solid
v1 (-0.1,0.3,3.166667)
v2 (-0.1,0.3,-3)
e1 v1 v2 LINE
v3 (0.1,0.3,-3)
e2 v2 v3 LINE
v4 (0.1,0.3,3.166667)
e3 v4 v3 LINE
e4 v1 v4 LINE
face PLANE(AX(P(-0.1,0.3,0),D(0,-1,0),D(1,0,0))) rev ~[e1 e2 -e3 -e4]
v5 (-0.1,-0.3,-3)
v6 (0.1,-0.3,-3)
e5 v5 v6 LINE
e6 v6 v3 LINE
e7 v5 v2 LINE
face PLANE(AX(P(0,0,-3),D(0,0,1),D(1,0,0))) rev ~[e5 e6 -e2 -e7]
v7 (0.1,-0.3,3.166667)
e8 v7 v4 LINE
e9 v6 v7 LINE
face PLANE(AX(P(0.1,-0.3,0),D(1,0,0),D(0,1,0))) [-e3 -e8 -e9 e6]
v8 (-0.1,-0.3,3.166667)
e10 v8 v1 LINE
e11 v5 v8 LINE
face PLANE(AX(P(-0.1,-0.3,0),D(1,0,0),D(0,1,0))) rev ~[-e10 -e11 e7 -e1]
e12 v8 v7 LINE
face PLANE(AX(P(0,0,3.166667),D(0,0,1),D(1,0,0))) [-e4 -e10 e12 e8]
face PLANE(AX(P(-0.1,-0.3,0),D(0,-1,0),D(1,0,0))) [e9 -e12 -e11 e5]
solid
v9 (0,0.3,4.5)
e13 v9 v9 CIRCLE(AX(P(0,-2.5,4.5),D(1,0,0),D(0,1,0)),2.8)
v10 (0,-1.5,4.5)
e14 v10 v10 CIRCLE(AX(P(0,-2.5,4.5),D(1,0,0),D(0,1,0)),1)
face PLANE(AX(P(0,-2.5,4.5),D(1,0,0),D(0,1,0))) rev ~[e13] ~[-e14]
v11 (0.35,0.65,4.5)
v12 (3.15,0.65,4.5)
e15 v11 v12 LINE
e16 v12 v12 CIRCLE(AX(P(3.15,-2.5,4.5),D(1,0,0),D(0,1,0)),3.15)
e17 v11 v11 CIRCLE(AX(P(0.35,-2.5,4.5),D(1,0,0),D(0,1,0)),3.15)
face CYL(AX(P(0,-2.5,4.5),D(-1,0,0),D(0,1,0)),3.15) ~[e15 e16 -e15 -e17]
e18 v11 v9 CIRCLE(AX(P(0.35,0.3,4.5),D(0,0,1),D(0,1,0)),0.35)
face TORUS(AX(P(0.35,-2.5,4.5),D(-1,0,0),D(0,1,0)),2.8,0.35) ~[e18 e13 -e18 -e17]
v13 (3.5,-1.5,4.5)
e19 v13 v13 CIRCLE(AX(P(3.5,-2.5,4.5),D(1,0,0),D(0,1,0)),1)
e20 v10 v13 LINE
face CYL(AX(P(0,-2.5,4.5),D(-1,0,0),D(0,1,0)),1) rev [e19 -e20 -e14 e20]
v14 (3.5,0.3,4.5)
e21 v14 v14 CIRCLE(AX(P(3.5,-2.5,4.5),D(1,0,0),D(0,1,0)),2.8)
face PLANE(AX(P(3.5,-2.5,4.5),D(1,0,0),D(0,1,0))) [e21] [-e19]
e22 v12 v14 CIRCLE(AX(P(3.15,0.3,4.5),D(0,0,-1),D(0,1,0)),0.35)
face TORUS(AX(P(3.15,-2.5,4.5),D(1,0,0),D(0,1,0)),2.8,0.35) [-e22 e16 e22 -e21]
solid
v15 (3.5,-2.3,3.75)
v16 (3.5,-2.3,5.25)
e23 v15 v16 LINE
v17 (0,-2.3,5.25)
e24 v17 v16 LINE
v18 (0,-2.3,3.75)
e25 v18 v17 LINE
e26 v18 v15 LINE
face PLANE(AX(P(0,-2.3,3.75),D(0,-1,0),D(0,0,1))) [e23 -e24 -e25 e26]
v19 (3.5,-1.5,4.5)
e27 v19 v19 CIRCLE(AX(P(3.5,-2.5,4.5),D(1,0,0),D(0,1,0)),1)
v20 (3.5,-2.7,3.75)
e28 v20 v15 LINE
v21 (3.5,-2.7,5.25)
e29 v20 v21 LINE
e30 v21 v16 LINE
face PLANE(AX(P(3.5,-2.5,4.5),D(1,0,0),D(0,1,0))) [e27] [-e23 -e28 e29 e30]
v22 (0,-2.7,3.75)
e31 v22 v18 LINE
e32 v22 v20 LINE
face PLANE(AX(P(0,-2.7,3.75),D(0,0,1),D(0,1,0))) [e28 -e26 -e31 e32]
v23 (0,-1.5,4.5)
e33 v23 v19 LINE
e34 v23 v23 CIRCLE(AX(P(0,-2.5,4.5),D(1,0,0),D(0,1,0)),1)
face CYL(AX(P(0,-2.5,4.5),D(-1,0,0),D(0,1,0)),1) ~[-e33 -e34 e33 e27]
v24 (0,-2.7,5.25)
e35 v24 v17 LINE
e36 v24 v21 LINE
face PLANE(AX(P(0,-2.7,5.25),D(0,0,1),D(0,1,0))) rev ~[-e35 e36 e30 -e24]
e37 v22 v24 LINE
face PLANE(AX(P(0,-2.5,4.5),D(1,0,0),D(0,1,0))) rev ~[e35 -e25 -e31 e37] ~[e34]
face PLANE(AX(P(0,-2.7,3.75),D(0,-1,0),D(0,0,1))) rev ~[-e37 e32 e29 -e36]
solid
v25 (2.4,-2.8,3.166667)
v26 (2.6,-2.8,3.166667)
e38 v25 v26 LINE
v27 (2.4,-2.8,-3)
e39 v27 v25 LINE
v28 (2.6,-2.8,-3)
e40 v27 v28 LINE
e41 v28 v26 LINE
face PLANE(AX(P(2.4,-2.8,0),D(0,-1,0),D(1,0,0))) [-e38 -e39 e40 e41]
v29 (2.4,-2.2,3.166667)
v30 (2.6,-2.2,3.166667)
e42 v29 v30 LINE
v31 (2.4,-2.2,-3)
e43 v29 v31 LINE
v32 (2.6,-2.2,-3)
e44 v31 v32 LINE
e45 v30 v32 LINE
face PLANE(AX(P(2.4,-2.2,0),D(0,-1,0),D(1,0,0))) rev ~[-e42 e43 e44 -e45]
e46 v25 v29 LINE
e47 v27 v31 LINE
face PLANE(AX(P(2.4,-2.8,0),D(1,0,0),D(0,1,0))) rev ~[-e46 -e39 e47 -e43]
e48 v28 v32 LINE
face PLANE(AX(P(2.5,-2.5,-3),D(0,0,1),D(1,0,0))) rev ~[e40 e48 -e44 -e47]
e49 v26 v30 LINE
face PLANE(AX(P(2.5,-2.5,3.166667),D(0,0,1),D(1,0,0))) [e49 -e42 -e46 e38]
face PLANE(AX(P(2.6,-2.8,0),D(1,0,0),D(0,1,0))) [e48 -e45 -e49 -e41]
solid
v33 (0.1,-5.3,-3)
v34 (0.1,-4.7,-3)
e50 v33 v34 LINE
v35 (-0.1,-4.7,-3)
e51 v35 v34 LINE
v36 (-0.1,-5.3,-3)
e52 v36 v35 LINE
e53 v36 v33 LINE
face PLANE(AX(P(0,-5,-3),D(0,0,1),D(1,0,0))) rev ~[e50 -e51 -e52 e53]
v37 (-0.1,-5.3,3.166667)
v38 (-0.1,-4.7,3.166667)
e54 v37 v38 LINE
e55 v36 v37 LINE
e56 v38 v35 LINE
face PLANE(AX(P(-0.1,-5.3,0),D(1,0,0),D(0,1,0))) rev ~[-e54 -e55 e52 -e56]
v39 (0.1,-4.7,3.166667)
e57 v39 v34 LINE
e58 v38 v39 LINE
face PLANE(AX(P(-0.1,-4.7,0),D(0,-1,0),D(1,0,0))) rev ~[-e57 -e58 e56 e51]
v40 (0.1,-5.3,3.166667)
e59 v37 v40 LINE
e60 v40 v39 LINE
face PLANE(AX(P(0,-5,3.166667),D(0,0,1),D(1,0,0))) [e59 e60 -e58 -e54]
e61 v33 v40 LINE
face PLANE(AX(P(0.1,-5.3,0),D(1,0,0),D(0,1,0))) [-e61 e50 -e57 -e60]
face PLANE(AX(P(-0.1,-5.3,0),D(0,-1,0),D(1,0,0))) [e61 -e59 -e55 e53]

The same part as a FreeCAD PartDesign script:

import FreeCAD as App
import Part
import Sketcher
from FreeCAD import Vector
Q = App.Units.Quantity


def edges_at(feature, points):
    """Names of the edges that pass closest to the given points."""
    edges = feature.Shape.Edges
    near = lambda p: min(range(len(edges)), key=lambda i: edges[i].distToShape(Part.Vertex(*p))[0])
    return sorted({f"Edge{near(p) + 1}" for p in points})

doc = App.newDocument("Part")
params = doc.addObject("Spreadsheet::Sheet", "Params")
for row, (alias, value) in enumerate([
    ("sketch1_diameter", "2 mm"),
    ("sketch1_width", "0.4 mm"),
    ("sketch1_height", "1.5 mm"),
    ("pad1_length", "3.5 mm"),
    ("sketch2_diameter", "2 mm"),
    ("sketch2_diameter2", "6.3 mm"),
    ("pad2_length", "3.5 mm"),
    ("fillet_radius", "0.35 mm"),
    ("sketch3_width", "0.2 mm"),
    ("sketch3_height", "0.6 mm"),
    ("pad3_length", "3.166667 mm"),
    ("pad3_length2", "3 mm"),
], start=1):
    params.set(f"A{row}", alias)
    params.set(f"B{row}", "=" + value)
    params.setAlias(f"B{row}", alias)

body = doc.addObject("PartDesign::Body", "Body")

# Sketch on YZ plane
sketch1 = body.newObject("Sketcher::SketchObject", "Sketch")
sketch1.AttachmentSupport = (doc.getObject("YZ_Plane"), [""])
sketch1.MapMode = "FlatFace"
sketch1.addGeometry([
    Part.Circle(Vector(-2.5, 4.5, 0), Vector(0, 0, 1), 1),  # 0
    Part.LineSegment(Vector(-2.3, 3.75, 0), Vector(-2.7, 3.75, 0)),  # 1
    Part.LineSegment(Vector(-2.7, 3.75, 0), Vector(-2.7, 5.25, 0)),  # 2
    Part.LineSegment(Vector(-2.7, 5.25, 0), Vector(-2.3, 5.25, 0)),  # 3
    Part.LineSegment(Vector(-2.3, 5.25, 0), Vector(-2.3, 3.75, 0)),  # 4
], False)
sketch1.addConstraint([
    Sketcher.Constraint("Coincident", 1, 2, 2, 1),
    Sketcher.Constraint("Coincident", 2, 2, 3, 1),
    Sketcher.Constraint("Coincident", 3, 2, 4, 1),
    Sketcher.Constraint("Coincident", 4, 2, 1, 1),
    Sketcher.Constraint("Horizontal", 1),
    Sketcher.Constraint("Vertical", 2),
    Sketcher.Constraint("Horizontal", 3),
    Sketcher.Constraint("Vertical", 4),
    Sketcher.Constraint("Diameter", 0, Q("2 mm")),
    Sketcher.Constraint("DistanceX", 1, 2, 1, 1, Q("0.4 mm")),
    Sketcher.Constraint("DistanceY", 2, 1, 2, 2, Q("1.5 mm")),
    Sketcher.Constraint("DistanceX", 0, 3, -1, 1, Q("2.5 mm")),
    Sketcher.Constraint("DistanceY", -1, 1, 0, 3, Q("4.5 mm")),
    Sketcher.Constraint("DistanceX", 1, 2, -1, 1, Q("2.7 mm")),
    Sketcher.Constraint("DistanceY", -1, 1, 1, 2, Q("3.75 mm")),
])
sketch1.setExpression("Constraints[8]", "Params.sketch1_diameter")
sketch1.setExpression("Constraints[9]", "Params.sketch1_width")
sketch1.setExpression("Constraints[10]", "Params.sketch1_height")
pad1 = body.newObject("PartDesign::Pad", "Pad")
pad1.Profile = sketch1
pad1.setExpression("Length", "Params.pad1_length")
body2 = doc.addObject("PartDesign::Body", "Body001")

# Sketch on YZ plane
sketch2 = body2.newObject("Sketcher::SketchObject", "Sketch001")
sketch2.AttachmentSupport = (doc.getObject("YZ_Plane001"), [""])
sketch2.MapMode = "FlatFace"
sketch2.addGeometry([
    Part.Circle(Vector(-2.5, 4.5, 0), Vector(0, 0, 1), 3.1),
    Part.Circle(Vector(-2.5, 4.5, 0), Vector(0, 0, 1), 1),
], False)
sketch2.addConstraint([
    Sketcher.Constraint("Coincident", 1, 3, 0, 3),
    Sketcher.Constraint("Diameter", 1, Q("2 mm")),
    Sketcher.Constraint("Diameter", 0, Q("6.3 mm")),
    Sketcher.Constraint("DistanceX", 0, 3, -1, 1, Q("2.5 mm")),
    Sketcher.Constraint("DistanceY", -1, 1, 0, 3, Q("4.5 mm")),
])
sketch2.setExpression("Constraints[1]", "Params.sketch2_diameter")
sketch2.setExpression("Constraints[2]", "Params.sketch2_diameter2")
pad2 = body2.newObject("PartDesign::Pad", "Pad001")
pad2.Profile = sketch2
pad2.setExpression("Length", "Params.pad2_length")
doc.recompute()

fillet = body2.newObject("PartDesign::Fillet", "Fillet")
fillet.Base = (pad2, edges_at(pad2, [(0, -5.65, 4.5), (3.5, -5.65, 4.5)]))
fillet.setExpression("Radius", "Params.fillet_radius")
body3 = doc.addObject("PartDesign::Body", "Body002")
body3.AllowCompound = True

# Sketch on XY plane
sketch3 = body3.newObject("Sketcher::SketchObject", "Sketch002")
sketch3.AttachmentSupport = (doc.getObject("XY_Plane002"), [""])
sketch3.MapMode = "FlatFace"
sketch3.addGeometry([
    Part.LineSegment(Vector(-0.1, 0.3, 0), Vector(-0.1, -0.3, 0)),  # 0
    Part.LineSegment(Vector(-0.1, -0.3, 0), Vector(0.1, -0.3, 0)),  # 1
    Part.LineSegment(Vector(0.1, -0.3, 0), Vector(0.1, 0.3, 0)),  # 2
    Part.LineSegment(Vector(0.1, 0.3, 0), Vector(-0.1, 0.3, 0)),  # 3
    Part.LineSegment(Vector(2.4, -2.2, 0), Vector(2.4, -2.8, 0)),  # 4
    Part.LineSegment(Vector(2.4, -2.8, 0), Vector(2.6, -2.8, 0)),  # 5
    Part.LineSegment(Vector(2.6, -2.8, 0), Vector(2.6, -2.2, 0)),  # 6
    Part.LineSegment(Vector(2.6, -2.2, 0), Vector(2.4, -2.2, 0)),  # 7
    Part.LineSegment(Vector(-0.1, -4.7, 0), Vector(-0.1, -5.3, 0)),  # 8
    Part.LineSegment(Vector(-0.1, -5.3, 0), Vector(0.1, -5.3, 0)),  # 9
    Part.LineSegment(Vector(0.1, -5.3, 0), Vector(0.1, -4.7, 0)),  # 10
    Part.LineSegment(Vector(0.1, -4.7, 0), Vector(-0.1, -4.7, 0)),  # 11
], False)
sketch3.addConstraint([
    Sketcher.Constraint("Coincident", 0, 2, 1, 1),
    Sketcher.Constraint("Coincident", 1, 2, 2, 1),
    Sketcher.Constraint("Coincident", 2, 2, 3, 1),
    Sketcher.Constraint("Coincident", 3, 2, 0, 1),
    Sketcher.Constraint("Coincident", 4, 2, 5, 1),
    Sketcher.Constraint("Coincident", 5, 2, 6, 1),
    Sketcher.Constraint("Coincident", 6, 2, 7, 1),
    Sketcher.Constraint("Coincident", 7, 2, 4, 1),
    Sketcher.Constraint("Coincident", 8, 2, 9, 1),
    Sketcher.Constraint("Coincident", 9, 2, 10, 1),
    Sketcher.Constraint("Coincident", 10, 2, 11, 1),
    Sketcher.Constraint("Coincident", 11, 2, 8, 1),
    Sketcher.Constraint("Vertical", 0),
    Sketcher.Constraint("Horizontal", 1),
    Sketcher.Constraint("Vertical", 2),
    Sketcher.Constraint("Horizontal", 3),
    Sketcher.Constraint("Vertical", 4),
    Sketcher.Constraint("Horizontal", 5),
    Sketcher.Constraint("Vertical", 6),
    Sketcher.Constraint("Horizontal", 7),
    Sketcher.Constraint("Vertical", 8),
    Sketcher.Constraint("Horizontal", 9),
    Sketcher.Constraint("Vertical", 10),
    Sketcher.Constraint("Horizontal", 11),
    Sketcher.Constraint("Symmetric", 0, 2, 2, 2, -1, 1),
    Sketcher.Constraint("Vertical", 3, 2, 8, 2),
    Sketcher.Constraint("Vertical", 2, 2, 9, 2),
    Sketcher.Constraint("Equal", 3, 5),
    Sketcher.Constraint("Equal", 2, 4),
    Sketcher.Constraint("Equal", 6, 8),
    Sketcher.Constraint("DistanceX", 1, 1, 1, 2, Q("0.2 mm")),
    Sketcher.Constraint("DistanceY", 0, 2, 0, 1, Q("0.6 mm")),
    Sketcher.Constraint("DistanceY", 8, 2, 0, 2, Q("5 mm")),
    Sketcher.Constraint("DistanceX", -1, 1, 4, 2, Q("2.4 mm")),
    Sketcher.Constraint("DistanceY", 4, 2, -1, 1, Q("2.8 mm")),
])
sketch3.setExpression("Constraints[30]", "Params.sketch3_width")
sketch3.setExpression("Constraints[31]", "Params.sketch3_height")
pad3 = body3.newObject("PartDesign::Pad", "Pad002")
pad3.Profile = sketch3
pad3.Type = "TwoLengths"
pad3.setExpression("Length", "Params.pad3_length")
pad3.setExpression("Length2", "Params.pad3_length2")

doc.recompute()
